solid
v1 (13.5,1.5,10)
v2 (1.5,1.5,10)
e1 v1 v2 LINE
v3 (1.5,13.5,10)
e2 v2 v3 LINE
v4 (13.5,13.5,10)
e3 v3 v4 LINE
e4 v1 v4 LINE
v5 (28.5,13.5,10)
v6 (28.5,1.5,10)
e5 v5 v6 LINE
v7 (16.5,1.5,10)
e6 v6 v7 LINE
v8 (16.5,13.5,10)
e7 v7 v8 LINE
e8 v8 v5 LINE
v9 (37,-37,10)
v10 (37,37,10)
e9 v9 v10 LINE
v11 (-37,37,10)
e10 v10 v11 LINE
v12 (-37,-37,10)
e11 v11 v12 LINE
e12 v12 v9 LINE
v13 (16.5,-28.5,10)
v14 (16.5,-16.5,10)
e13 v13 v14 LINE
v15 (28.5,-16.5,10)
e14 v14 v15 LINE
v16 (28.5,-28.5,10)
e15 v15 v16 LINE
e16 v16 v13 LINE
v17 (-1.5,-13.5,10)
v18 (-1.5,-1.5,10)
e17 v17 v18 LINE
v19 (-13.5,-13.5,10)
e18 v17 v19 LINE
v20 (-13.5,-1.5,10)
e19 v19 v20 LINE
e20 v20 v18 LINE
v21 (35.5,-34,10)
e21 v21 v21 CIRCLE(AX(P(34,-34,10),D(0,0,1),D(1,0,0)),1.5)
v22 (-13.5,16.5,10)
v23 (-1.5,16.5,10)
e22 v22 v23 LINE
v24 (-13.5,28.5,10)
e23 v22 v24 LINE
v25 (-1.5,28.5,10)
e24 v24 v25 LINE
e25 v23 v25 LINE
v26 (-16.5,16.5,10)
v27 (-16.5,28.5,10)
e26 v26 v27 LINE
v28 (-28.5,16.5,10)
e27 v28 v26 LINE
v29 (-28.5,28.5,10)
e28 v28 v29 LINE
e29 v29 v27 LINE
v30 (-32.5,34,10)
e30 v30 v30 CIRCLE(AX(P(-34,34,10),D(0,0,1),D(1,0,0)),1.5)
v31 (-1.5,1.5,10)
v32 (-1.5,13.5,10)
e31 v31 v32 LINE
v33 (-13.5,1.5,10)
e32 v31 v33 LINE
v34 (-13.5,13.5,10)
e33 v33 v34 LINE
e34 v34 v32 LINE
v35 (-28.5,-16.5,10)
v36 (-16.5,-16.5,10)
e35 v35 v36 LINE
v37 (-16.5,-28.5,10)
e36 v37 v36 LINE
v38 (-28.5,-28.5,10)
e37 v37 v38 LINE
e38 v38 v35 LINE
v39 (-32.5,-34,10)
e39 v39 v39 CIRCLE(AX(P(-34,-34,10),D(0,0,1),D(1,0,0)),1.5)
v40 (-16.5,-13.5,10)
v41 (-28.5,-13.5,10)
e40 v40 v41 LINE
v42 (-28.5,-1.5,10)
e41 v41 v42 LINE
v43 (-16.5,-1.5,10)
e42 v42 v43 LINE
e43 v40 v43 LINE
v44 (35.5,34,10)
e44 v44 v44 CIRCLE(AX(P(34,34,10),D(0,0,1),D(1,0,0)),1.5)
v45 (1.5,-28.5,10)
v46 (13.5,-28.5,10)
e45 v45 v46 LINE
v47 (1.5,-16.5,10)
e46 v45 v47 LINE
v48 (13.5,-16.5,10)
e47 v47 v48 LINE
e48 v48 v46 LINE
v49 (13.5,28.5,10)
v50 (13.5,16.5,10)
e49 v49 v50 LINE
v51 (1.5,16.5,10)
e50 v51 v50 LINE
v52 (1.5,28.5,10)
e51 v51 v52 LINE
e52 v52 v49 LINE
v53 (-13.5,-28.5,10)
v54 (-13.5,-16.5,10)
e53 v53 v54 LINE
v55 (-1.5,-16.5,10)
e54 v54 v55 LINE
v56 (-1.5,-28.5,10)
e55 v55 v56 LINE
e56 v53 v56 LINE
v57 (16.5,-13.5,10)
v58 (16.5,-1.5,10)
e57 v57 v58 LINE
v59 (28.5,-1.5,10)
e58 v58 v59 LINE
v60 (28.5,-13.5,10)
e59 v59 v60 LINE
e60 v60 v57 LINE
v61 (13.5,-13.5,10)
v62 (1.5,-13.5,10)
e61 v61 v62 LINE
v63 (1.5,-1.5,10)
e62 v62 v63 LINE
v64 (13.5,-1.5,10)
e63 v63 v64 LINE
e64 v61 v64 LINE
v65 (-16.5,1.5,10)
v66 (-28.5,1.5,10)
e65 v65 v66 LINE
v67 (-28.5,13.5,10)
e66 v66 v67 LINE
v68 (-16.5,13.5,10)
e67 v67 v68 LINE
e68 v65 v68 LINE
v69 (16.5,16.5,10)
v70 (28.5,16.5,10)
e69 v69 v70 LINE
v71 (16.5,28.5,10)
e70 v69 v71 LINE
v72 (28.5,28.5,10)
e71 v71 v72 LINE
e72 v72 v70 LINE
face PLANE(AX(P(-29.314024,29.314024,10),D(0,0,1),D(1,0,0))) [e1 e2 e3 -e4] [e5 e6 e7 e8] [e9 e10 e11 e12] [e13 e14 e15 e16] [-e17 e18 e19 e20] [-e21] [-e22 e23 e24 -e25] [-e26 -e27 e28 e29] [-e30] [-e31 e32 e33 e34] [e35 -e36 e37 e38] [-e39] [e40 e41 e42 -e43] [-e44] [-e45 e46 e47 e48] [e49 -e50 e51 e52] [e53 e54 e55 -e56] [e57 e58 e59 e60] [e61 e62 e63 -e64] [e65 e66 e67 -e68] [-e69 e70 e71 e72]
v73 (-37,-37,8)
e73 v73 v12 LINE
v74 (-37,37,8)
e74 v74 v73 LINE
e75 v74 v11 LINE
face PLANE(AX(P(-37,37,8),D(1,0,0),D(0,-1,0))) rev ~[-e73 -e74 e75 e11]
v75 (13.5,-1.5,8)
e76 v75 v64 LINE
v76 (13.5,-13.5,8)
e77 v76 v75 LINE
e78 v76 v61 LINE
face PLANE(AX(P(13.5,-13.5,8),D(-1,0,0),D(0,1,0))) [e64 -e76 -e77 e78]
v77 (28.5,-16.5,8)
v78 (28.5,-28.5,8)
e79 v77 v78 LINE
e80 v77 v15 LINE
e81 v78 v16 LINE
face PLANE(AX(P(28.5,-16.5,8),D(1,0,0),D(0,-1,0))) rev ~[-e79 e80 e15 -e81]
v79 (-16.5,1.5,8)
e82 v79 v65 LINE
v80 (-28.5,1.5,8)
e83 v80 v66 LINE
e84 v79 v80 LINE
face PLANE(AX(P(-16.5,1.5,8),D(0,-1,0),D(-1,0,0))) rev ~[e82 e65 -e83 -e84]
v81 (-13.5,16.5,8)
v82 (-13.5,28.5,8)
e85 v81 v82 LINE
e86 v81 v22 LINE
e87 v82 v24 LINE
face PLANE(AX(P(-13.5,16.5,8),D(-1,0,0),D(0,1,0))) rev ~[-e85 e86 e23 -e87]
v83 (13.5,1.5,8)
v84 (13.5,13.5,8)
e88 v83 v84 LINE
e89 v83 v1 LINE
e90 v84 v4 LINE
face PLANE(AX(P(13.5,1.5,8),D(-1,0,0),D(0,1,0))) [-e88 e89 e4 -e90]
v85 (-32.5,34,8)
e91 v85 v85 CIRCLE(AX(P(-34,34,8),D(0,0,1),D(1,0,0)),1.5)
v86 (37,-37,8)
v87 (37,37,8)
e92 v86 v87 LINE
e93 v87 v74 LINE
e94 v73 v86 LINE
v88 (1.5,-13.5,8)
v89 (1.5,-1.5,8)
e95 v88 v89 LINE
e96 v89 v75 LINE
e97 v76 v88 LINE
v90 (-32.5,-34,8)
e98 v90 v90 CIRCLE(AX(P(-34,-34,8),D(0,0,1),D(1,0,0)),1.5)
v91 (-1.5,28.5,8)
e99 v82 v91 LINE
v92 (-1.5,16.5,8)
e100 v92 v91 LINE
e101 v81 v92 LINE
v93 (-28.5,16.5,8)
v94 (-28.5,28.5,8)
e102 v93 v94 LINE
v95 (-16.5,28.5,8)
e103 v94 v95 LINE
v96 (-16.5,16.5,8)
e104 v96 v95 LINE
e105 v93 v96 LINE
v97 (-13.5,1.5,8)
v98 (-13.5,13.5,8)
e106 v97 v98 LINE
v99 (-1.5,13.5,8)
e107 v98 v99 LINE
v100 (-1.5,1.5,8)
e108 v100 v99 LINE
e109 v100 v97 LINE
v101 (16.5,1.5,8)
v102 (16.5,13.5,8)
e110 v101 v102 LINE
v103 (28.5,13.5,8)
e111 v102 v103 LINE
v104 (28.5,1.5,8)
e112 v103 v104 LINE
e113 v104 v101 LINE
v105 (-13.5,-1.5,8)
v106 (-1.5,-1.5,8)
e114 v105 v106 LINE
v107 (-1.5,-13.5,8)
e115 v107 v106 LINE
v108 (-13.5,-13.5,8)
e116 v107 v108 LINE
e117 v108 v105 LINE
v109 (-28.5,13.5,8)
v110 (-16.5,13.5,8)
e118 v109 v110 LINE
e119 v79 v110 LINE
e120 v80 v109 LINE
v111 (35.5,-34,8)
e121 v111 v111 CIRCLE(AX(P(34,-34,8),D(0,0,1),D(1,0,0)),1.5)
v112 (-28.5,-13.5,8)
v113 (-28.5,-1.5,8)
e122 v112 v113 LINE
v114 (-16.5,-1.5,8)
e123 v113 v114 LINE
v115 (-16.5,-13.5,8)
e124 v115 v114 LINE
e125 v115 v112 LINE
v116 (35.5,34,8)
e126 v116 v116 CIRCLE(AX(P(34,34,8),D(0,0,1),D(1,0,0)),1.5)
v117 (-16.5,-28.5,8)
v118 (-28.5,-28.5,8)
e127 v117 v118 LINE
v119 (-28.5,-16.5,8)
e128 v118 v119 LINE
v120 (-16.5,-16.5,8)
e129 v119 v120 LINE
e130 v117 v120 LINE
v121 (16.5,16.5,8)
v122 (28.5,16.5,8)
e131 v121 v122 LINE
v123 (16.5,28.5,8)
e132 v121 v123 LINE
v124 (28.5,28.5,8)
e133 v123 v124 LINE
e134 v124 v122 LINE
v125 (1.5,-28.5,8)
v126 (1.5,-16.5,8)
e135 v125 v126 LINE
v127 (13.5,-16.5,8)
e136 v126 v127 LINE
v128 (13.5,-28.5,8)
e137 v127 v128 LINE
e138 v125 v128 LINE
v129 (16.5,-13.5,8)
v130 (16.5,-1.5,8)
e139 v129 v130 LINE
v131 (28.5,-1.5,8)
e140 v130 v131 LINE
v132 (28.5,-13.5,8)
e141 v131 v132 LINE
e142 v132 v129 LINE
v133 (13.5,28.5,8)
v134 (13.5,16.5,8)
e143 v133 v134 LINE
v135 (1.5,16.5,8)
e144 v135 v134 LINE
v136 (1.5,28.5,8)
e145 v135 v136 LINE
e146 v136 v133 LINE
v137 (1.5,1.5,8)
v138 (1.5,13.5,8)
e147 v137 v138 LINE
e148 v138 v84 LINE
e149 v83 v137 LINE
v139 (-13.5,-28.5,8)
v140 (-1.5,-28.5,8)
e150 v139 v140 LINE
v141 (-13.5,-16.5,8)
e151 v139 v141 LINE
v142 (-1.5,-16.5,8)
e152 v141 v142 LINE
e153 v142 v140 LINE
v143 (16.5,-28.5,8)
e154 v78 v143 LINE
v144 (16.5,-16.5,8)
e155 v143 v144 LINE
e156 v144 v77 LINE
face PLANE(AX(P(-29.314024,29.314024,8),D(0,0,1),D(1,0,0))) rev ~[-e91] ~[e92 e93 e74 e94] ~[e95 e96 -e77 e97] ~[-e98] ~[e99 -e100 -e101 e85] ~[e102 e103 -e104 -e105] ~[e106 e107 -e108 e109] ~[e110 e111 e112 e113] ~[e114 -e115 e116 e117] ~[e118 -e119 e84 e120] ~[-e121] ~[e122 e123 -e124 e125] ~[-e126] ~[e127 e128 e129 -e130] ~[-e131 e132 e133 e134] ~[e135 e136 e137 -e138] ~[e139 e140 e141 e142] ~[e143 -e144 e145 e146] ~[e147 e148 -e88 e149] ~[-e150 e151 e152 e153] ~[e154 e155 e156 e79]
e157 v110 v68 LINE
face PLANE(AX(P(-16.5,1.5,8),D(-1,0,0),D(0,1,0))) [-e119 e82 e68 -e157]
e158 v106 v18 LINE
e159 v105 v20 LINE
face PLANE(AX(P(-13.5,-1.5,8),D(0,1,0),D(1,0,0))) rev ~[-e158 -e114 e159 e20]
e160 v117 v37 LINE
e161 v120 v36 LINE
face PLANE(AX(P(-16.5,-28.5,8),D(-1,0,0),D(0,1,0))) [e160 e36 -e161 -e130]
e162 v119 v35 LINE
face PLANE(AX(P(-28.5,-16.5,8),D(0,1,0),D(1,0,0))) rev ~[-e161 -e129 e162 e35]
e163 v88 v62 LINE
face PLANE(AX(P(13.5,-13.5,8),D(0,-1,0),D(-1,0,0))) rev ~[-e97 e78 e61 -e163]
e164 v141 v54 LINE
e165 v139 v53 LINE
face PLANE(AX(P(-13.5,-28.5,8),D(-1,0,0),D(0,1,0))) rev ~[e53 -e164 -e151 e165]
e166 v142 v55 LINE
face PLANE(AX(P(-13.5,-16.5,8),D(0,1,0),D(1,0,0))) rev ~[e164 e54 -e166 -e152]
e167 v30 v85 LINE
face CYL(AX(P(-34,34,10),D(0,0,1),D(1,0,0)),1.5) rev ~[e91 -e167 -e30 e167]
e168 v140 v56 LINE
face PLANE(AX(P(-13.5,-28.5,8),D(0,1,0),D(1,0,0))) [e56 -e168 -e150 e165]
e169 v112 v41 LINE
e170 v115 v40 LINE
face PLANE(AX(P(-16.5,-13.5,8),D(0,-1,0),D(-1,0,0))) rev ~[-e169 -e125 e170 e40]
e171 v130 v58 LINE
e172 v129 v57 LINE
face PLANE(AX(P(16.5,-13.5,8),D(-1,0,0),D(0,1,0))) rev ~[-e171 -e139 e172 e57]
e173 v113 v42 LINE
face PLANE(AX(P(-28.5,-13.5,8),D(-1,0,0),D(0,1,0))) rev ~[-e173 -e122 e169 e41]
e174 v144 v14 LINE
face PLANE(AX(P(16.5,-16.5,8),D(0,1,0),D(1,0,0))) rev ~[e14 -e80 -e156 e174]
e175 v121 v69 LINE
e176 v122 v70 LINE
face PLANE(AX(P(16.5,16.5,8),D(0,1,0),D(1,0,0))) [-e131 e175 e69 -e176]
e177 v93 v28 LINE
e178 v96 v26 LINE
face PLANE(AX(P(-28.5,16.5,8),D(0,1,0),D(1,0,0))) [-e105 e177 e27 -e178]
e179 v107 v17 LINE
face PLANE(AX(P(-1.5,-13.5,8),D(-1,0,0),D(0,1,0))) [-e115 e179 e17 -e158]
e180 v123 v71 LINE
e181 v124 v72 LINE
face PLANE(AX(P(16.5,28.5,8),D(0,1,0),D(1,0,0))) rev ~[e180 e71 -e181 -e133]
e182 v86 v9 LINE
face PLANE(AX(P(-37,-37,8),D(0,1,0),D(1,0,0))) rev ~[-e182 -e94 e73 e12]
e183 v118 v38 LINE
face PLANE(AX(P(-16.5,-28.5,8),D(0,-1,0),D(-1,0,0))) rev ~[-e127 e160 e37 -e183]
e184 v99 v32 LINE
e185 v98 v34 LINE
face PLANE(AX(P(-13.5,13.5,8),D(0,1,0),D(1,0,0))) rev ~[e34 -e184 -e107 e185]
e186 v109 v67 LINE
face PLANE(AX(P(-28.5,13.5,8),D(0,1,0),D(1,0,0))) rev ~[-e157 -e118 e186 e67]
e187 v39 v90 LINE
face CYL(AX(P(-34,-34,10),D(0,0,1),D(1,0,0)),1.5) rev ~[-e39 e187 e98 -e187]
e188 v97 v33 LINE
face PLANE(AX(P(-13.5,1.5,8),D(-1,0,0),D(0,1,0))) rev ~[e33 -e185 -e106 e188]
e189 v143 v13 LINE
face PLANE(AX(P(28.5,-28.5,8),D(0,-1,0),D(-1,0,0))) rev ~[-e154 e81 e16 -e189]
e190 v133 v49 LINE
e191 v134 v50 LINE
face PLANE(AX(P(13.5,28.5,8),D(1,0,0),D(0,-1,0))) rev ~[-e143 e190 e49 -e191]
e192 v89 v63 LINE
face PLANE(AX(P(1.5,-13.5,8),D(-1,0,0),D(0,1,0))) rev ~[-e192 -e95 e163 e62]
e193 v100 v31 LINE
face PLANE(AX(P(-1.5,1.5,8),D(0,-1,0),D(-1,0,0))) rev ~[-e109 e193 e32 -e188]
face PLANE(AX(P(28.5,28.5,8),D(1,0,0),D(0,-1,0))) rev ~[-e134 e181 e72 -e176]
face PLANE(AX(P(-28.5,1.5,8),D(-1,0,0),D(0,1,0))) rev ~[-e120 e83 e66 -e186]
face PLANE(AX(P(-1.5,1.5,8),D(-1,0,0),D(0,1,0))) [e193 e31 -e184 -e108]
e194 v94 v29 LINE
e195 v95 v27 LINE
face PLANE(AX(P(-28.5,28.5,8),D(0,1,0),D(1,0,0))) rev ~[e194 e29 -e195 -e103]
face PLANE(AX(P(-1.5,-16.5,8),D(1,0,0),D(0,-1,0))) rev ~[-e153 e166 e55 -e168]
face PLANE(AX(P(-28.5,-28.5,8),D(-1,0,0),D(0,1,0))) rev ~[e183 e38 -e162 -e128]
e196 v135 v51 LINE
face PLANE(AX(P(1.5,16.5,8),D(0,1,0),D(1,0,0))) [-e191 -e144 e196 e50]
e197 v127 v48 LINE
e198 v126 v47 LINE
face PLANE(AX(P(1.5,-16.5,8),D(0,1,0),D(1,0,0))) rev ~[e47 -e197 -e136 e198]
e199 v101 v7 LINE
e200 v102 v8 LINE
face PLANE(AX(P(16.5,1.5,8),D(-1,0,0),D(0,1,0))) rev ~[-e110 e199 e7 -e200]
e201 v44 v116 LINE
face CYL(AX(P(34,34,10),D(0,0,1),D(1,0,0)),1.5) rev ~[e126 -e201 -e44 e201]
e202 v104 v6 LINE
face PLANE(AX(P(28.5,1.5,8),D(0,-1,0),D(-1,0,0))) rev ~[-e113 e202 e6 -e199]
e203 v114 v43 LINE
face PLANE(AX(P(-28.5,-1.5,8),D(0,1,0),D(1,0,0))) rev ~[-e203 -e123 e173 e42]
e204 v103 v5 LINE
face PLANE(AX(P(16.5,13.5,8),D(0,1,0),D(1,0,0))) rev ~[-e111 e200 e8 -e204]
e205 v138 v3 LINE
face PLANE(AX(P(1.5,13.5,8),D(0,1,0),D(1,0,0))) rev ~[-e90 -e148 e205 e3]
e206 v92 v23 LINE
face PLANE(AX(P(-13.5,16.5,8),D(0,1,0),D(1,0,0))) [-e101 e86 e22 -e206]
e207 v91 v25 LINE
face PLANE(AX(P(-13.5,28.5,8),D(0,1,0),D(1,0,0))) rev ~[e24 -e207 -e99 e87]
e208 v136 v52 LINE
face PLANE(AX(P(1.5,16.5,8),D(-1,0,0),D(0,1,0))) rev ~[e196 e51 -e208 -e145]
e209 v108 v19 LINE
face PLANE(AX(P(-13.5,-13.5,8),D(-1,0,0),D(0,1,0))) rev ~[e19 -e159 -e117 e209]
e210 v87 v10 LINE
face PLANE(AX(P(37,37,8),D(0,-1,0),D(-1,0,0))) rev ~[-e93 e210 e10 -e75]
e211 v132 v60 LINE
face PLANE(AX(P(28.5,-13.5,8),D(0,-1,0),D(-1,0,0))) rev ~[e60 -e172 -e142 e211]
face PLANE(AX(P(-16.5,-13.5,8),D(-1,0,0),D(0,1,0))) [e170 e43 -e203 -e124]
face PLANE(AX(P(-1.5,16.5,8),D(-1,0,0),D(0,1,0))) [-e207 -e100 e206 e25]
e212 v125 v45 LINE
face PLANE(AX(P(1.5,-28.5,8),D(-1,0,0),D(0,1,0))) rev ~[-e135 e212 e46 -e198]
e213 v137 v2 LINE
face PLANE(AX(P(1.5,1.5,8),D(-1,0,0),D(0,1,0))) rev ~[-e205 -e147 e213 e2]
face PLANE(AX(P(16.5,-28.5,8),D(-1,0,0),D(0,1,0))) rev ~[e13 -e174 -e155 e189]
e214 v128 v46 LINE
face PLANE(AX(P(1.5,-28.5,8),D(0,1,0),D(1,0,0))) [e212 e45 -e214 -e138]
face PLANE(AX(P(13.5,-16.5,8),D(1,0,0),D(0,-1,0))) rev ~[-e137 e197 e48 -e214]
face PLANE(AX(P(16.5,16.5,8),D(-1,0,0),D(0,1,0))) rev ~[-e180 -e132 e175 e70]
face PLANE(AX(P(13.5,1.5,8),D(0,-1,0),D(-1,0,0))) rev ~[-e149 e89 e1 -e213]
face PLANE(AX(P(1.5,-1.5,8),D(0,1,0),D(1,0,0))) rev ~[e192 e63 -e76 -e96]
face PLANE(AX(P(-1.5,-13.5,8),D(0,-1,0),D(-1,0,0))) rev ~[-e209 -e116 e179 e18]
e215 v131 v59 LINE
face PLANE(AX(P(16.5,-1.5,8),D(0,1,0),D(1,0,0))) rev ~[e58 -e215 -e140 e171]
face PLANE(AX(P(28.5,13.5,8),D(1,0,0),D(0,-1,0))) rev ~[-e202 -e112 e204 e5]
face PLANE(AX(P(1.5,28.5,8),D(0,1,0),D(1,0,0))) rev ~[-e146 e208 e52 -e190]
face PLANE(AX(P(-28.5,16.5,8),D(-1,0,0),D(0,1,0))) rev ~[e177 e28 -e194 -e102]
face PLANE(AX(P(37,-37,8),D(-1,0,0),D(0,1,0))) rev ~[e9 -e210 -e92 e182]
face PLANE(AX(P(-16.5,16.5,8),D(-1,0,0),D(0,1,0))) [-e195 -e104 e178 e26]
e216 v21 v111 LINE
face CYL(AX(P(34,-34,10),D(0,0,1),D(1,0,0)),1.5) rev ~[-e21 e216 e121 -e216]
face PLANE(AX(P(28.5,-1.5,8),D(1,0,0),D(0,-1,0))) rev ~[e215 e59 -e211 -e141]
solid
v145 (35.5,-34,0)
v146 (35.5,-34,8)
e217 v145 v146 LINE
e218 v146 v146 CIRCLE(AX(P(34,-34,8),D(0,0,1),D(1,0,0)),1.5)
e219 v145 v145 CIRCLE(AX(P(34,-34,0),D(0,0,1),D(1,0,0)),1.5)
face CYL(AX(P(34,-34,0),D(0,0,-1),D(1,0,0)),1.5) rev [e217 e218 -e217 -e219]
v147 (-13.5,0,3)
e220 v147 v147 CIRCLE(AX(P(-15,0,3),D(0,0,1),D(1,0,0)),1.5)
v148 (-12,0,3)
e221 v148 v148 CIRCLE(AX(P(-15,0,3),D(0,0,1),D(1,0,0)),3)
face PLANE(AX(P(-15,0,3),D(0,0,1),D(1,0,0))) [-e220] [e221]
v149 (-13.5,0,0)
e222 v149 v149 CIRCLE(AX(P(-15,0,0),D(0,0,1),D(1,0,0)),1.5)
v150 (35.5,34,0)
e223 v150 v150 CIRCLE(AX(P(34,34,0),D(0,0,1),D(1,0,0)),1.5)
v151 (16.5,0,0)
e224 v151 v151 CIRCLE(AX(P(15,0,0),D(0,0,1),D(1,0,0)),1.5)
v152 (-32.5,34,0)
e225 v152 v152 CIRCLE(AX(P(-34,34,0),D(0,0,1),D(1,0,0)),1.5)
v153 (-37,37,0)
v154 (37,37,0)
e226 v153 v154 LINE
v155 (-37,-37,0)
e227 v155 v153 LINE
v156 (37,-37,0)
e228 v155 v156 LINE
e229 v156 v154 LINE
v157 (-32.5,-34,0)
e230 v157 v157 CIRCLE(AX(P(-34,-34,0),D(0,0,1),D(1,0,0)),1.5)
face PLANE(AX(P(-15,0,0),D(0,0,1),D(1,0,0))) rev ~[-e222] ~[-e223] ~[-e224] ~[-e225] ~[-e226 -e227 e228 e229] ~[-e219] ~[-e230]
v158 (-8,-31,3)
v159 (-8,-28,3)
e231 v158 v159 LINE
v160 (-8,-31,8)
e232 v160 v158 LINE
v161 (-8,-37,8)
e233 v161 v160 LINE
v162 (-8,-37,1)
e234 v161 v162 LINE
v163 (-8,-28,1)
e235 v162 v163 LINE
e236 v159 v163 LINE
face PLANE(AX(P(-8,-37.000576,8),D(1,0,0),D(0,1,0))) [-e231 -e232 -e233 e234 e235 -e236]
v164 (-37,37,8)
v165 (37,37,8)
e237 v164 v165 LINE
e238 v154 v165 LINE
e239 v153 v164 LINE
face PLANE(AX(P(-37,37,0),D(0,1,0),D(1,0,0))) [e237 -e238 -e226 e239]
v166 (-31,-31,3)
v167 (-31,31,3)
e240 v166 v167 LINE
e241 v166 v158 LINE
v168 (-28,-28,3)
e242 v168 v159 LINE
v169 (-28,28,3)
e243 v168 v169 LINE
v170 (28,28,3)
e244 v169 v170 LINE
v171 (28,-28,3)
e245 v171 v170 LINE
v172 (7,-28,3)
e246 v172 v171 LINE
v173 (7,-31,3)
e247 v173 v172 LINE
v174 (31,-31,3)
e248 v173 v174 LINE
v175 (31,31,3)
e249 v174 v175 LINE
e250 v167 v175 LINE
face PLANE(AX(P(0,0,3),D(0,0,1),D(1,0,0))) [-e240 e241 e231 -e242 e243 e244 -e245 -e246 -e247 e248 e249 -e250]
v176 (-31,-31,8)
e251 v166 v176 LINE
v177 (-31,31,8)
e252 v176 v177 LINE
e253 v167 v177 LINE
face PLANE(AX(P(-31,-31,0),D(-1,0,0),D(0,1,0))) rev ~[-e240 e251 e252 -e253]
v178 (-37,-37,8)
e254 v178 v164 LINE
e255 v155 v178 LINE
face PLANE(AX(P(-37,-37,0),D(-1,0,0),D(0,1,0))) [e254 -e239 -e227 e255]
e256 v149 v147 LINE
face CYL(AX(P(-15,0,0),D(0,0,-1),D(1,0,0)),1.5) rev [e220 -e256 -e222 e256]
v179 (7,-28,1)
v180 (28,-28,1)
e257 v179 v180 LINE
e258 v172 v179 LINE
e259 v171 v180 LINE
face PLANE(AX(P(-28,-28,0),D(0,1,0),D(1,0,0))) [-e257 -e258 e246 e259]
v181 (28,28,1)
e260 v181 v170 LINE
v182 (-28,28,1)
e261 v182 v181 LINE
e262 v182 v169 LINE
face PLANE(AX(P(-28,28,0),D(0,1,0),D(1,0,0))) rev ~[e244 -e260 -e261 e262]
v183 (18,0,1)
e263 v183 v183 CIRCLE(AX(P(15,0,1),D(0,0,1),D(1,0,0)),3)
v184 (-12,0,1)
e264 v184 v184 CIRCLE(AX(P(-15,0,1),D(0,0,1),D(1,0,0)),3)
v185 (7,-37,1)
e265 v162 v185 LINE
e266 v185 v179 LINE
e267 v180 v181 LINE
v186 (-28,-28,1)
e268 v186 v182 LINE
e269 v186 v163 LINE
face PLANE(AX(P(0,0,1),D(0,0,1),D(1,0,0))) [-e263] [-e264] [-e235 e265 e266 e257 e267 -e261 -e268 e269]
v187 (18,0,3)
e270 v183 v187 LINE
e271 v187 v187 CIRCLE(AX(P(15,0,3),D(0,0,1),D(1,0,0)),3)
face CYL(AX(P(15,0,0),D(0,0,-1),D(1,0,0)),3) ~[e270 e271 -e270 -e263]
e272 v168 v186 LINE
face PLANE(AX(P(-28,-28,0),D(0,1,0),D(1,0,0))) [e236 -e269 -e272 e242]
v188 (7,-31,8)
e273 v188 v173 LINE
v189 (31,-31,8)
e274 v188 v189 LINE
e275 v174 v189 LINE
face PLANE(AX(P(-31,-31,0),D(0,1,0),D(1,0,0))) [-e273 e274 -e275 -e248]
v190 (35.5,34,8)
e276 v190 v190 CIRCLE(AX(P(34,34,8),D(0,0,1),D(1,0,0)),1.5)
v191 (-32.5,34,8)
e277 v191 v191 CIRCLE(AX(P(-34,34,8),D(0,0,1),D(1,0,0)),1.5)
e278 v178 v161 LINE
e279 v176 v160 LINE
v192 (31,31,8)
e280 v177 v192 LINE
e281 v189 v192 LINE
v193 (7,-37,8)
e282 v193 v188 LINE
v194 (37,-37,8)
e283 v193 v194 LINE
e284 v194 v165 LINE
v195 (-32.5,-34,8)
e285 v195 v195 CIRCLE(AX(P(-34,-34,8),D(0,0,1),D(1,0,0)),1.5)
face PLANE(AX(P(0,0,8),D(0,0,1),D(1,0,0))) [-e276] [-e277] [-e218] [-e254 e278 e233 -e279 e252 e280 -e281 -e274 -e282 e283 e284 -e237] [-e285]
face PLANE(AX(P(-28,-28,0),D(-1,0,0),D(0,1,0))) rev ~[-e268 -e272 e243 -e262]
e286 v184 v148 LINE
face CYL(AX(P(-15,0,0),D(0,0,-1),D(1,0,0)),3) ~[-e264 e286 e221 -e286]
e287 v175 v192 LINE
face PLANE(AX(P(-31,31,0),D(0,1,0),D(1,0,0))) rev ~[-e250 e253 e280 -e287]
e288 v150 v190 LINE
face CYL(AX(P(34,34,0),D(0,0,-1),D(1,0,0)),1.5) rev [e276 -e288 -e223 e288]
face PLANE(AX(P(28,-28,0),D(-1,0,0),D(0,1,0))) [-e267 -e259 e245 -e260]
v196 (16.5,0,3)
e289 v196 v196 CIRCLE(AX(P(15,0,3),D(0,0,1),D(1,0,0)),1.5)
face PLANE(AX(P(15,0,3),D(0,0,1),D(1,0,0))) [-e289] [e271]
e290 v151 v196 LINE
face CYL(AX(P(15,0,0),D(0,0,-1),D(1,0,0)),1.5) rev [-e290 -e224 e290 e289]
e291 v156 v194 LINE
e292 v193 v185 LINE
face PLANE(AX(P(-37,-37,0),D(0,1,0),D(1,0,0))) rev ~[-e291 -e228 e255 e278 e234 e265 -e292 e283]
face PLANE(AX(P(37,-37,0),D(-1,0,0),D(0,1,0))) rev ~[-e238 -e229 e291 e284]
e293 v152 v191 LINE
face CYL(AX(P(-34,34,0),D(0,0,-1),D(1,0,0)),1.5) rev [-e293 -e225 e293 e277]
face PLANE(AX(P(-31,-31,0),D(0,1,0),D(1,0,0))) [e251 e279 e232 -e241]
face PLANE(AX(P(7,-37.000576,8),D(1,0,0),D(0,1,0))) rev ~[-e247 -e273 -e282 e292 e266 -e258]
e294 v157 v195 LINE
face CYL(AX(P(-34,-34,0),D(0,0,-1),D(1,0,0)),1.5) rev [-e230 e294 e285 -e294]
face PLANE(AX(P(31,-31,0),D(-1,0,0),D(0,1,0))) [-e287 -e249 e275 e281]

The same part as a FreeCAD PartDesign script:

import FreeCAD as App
import Part
import Sketcher
from FreeCAD import Vector


def add_polygon(sketch, points):
    """Adds a closed chain of lines whose ends are joined by coincident constraints."""
    first, n = sketch.GeometryCount, len(points)
    for a, b in zip(points, points[1:] + points[:1]):
        sketch.addGeometry(Part.LineSegment(App.Vector(*a, 0), App.Vector(*b, 0)), False)
    for i in range(n):
        sketch.addConstraint(Sketcher.Constraint("Coincident", first + i, 2, first + (i + 1) % n, 1))

doc = App.newDocument("Part")
params = doc.addObject("Spreadsheet::Sheet", "Params")
for row, (alias, value) in enumerate([
    ("sketch1_diameter", "3 mm"),
    ("sketch1_width", "74 mm"),
    ("sketch1_width2", "62 mm"),
    ("pad1_length", "8 mm"),
    ("sketch2_width", "62 mm"),
    ("sketch2_width2", "56 mm"),
    ("pad2_length", "2 mm"),
    ("sketch3_diameter", "6 mm"),
    ("sketch3_width", "56 mm"),
    ("pad3_length", "1 mm"),
    ("sketch4_diameter", "6 mm"),
    ("sketch4_diameter2", "3 mm"),
    ("pad4_length", "3 mm"),
    ("sketch5_width", "62 mm"),
    ("sketch5_width2", "56 mm"),
    ("pad5_length", "3 mm"),
    ("sketch6_width", "15 mm"),
    ("pocket1_length", "7 mm"),
    ("sketch7_width", "74 mm"),
    ("sketch7_width2", "12 mm"),
    ("pad6_length", "2 mm"),
    ("sketch8_diameter", "3 mm"),
    ("pocket2_length", "2 mm"),
], start=1):
    params.set(f"A{row}", alias)
    params.set(f"B{row}", "=" + value)
    params.setAlias(f"B{row}", alias)

body = doc.addObject("PartDesign::Body", "Body")

# Sketch on XY plane
sketch1 = doc.addObject("Sketcher::SketchObject", "Sketch")
body.addObject(sketch1)
sketch1.AttachmentSupport = (doc.XY_Plane, [""])
sketch1.MapMode = "FlatFace"
add_polygon(sketch1, [(-37, 37), (-37, -37), (37, -37), (37, 37)])  # lines 0-3
sketch1.addGeometry(Part.Circle(Vector(-34, -34, 0), Vector(0, 0, 1), 1.5), False)  # 4
sketch1.addGeometry(Part.Circle(Vector(34, -34, 0), Vector(0, 0, 1), 1.5), False)  # 5
sketch1.addGeometry(Part.Circle(Vector(-34, 34, 0), Vector(0, 0, 1), 1.5), False)  # 6
add_polygon(sketch1, [(31, -31), (-31, -31), (-31, 31), (31, 31)])  # lines 7-10
sketch1.addGeometry(Part.Circle(Vector(34, 34, 0), Vector(0, 0, 1), 1.5), False)  # 11
sketch1.addConstraint([
    Sketcher.Constraint("Vertical", 0),
    Sketcher.Constraint("Horizontal", 1),
    Sketcher.Constraint("Vertical", 2),
    Sketcher.Constraint("Horizontal", 3),
    Sketcher.Constraint("Horizontal", 7),
    Sketcher.Constraint("Vertical", 8),
    Sketcher.Constraint("Horizontal", 9),
    Sketcher.Constraint("Vertical", 10),
    Sketcher.Constraint("Equal", 4, 5),
    Sketcher.Constraint("Equal", 5, 6),
    Sketcher.Constraint("Equal", 6, 11),
    Sketcher.Constraint("Symmetric", 5, 3, 6, 3, -1, 1),
    Sketcher.Constraint("Symmetric", 4, 3, 11, 3, -1, 1),
    Sketcher.Constraint("Symmetric", 0, 2, 2, 2, -1, 1),
    Sketcher.Constraint("Symmetric", 7, 2, 9, 2, -1, 1),
    Sketcher.Constraint("Symmetric", 4, 3, 5, 3, -2),
    Sketcher.Constraint("Equal", 3, 0),
    Sketcher.Constraint("Equal", 9, 8),
    Sketcher.Constraint("Diameter", 4, 3.0),
    Sketcher.Constraint("DistanceX", 1, 1, 1, 2, 74.0),
    Sketcher.Constraint("DistanceX", 7, 2, 7, 1, 62.0),
    Sketcher.Constraint("DistanceX", 4, 3, -1, 1, 34.0),
    Sketcher.Constraint("DistanceY", 4, 3, -1, 1, 34.0),
])
sketch1.setExpression("Constraints[26]", "Params.sketch1_diameter")
sketch1.setExpression("Constraints[27]", "Params.sketch1_width")
sketch1.setExpression("Constraints[28]", "Params.sketch1_width2")
pad1 = doc.addObject("PartDesign::Pad", "Pad")
body.addObject(pad1)
pad1.Profile = sketch1
pad1.setExpression("Length", "Params.pad1_length")

# Sketch on XY plane
sketch2 = doc.addObject("Sketcher::SketchObject", "Sketch001")
body.addObject(sketch2)
sketch2.AttachmentSupport = (doc.XY_Plane, [""])
sketch2.MapMode = "FlatFace"
add_polygon(sketch2, [(-31, 31), (-31, -31), (31, -31), (31, 31)])  # lines 0-3
add_polygon(sketch2, [(28, -28), (-28, -28), (-28, 28), (28, 28)])  # lines 4-7
sketch2.addConstraint([
    Sketcher.Constraint("Vertical", 0),
    Sketcher.Constraint("Horizontal", 1),
    Sketcher.Constraint("Vertical", 2),
    Sketcher.Constraint("Horizontal", 3),
    Sketcher.Constraint("Horizontal", 4),
    Sketcher.Constraint("Vertical", 5),
    Sketcher.Constraint("Horizontal", 6),
    Sketcher.Constraint("Vertical", 7),
    Sketcher.Constraint("Symmetric", 0, 2, 2, 2, -1, 1),
    Sketcher.Constraint("Symmetric", 4, 2, 6, 2, -1, 1),
    Sketcher.Constraint("Equal", 3, 0),
    Sketcher.Constraint("Equal", 6, 5),
    Sketcher.Constraint("DistanceX", 1, 1, 1, 2, 62.0),
    Sketcher.Constraint("DistanceX", 4, 2, 4, 1, 56.0),
])
sketch2.setExpression("Constraints[20]", "Params.sketch2_width")
sketch2.setExpression("Constraints[21]", "Params.sketch2_width2")
pad2 = doc.addObject("PartDesign::Pad", "Pad001")
body.addObject(pad2)
pad2.Profile = sketch2
pad2.setExpression("Length", "Params.pad2_length")

# Sketch on XY plane
sketch3 = doc.addObject("Sketcher::SketchObject", "Sketch002")
body.addObject(sketch3)
sketch3.AttachmentSupport = (doc.XY_Plane, [""])
sketch3.MapMode = "FlatFace"
add_polygon(sketch3, [(-28, 28), (-28, -28), (28, -28), (28, 28)])  # lines 0-3
sketch3.addGeometry(Part.Circle(Vector(-15, 0, 0), Vector(0, 0, 1), 3), False)  # 4
sketch3.addGeometry(Part.Circle(Vector(15, 0, 0), Vector(0, 0, 1), 3), False)  # 5
sketch3.addConstraint([
    Sketcher.Constraint("Vertical", 0),
    Sketcher.Constraint("Horizontal", 1),
    Sketcher.Constraint("Vertical", 2),
    Sketcher.Constraint("Horizontal", 3),
    Sketcher.Constraint("Equal", 4, 5),
    Sketcher.Constraint("Symmetric", 4, 3, 5, 3, -1, 1),
    Sketcher.Constraint("Symmetric", 0, 2, 2, 2, -1, 1),
    Sketcher.Constraint("PointOnObject", 4, 3, -1),
    Sketcher.Constraint("Equal", 3, 0),
    Sketcher.Constraint("Diameter", 4, 6.0),
    Sketcher.Constraint("DistanceX", 1, 1, 1, 2, 56.0),
    Sketcher.Constraint("DistanceX", 4, 3, -1, 1, 15.0),
])
sketch3.setExpression("Constraints[13]", "Params.sketch3_diameter")
sketch3.setExpression("Constraints[14]", "Params.sketch3_width")
pad3 = doc.addObject("PartDesign::Pad", "Pad002")
body.addObject(pad3)
pad3.Profile = sketch3
pad3.setExpression("Length", "Params.pad3_length")

# Sketch on XY plane
sketch4 = doc.addObject("Sketcher::SketchObject", "Sketch003")
body.addObject(sketch4)
sketch4.AttachmentSupport = (doc.XY_Plane, [""])
sketch4.MapMode = "FlatFace"
sketch4.addGeometry([
    Part.Circle(Vector(-15, 0, 0), Vector(0, 0, 1), 3),
    Part.Circle(Vector(-15, 0, 0), Vector(0, 0, 1), 1.5),
    Part.Circle(Vector(15, 0, 0), Vector(0, 0, 1), 3),
    Part.Circle(Vector(15, 0, 0), Vector(0, 0, 1), 1.5),
], False)
sketch4.addConstraint([
    Sketcher.Constraint("Coincident", 1, 3, 0, 3),
    Sketcher.Constraint("Coincident", 3, 3, 2, 3),
    Sketcher.Constraint("Equal", 0, 2),
    Sketcher.Constraint("Equal", 1, 3),
    Sketcher.Constraint("Symmetric", 0, 3, 2, 3, -1, 1),
    Sketcher.Constraint("PointOnObject", 0, 3, -1),
    Sketcher.Constraint("Diameter", 0, 6.0),
    Sketcher.Constraint("Diameter", 1, 3.0),
    Sketcher.Constraint("DistanceX", 0, 3, -1, 1, 15.0),
])
sketch4.setExpression("Constraints[6]", "Params.sketch4_diameter")
sketch4.setExpression("Constraints[7]", "Params.sketch4_diameter2")
pad4 = doc.addObject("PartDesign::Pad", "Pad003")
body.addObject(pad4)
pad4.Profile = sketch4
pad4.setExpression("Length", "Params.pad4_length")

# Sketch on XY plane
sketch5 = doc.addObject("Sketcher::SketchObject", "Sketch004")
body.addObject(sketch5)
sketch5.AttachmentSupport = (doc.XY_Plane, [""])
sketch5.MapMode = "FlatFace"
add_polygon(sketch5, [(-31, 31), (-31, -31), (31, -31), (31, 31)])  # lines 0-3
add_polygon(sketch5, [(28, -28), (-28, -28), (-28, 28), (28, 28)])  # lines 4-7
sketch5.addConstraint([
    Sketcher.Constraint("Vertical", 0),
    Sketcher.Constraint("Horizontal", 1),
    Sketcher.Constraint("Vertical", 2),
    Sketcher.Constraint("Horizontal", 3),
    Sketcher.Constraint("Horizontal", 4),
    Sketcher.Constraint("Vertical", 5),
    Sketcher.Constraint("Horizontal", 6),
    Sketcher.Constraint("Vertical", 7),
    Sketcher.Constraint("Symmetric", 0, 2, 2, 2, -1, 1),
    Sketcher.Constraint("Symmetric", 4, 2, 6, 2, -1, 1),
    Sketcher.Constraint("Equal", 3, 0),
    Sketcher.Constraint("Equal", 6, 5),
    Sketcher.Constraint("DistanceX", 1, 1, 1, 2, 62.0),
    Sketcher.Constraint("DistanceX", 4, 2, 4, 1, 56.0),
])
sketch5.setExpression("Constraints[20]", "Params.sketch5_width")
sketch5.setExpression("Constraints[21]", "Params.sketch5_width2")
pad5 = doc.addObject("PartDesign::Pad", "Pad004")
body.addObject(pad5)
pad5.Profile = sketch5
pad5.setExpression("Length", "Params.pad5_length")

# Sketch on XY plane
sketch6 = doc.addObject("Sketcher::SketchObject", "Sketch005")
body.addObject(sketch6)
sketch6.AttachmentSupport = (doc.XY_Plane, [""])
sketch6.MapMode = "FlatFace"
sketch6.AttachmentOffset = App.Placement(Vector(0, 0, 8), App.Rotation())
add_polygon(sketch6, [(7, -37.000576), (7, -28), (-8, -28), (-8, -37.000576)])  # lines 0-3
sketch6.addConstraint([
    Sketcher.Constraint("Vertical", 0),
    Sketcher.Constraint("Horizontal", 1),
    Sketcher.Constraint("Vertical", 2),
    Sketcher.Constraint("Horizontal", 3),
    Sketcher.Constraint("DistanceX", 1, 2, 1, 1, 15.0),
    Sketcher.Constraint("DistanceX", -1, 1, 0, 2, 7.0),
    Sketcher.Constraint("DistanceY", 0, 2, -1, 1, 28.0),
    Sketcher.Constraint("DistanceY", 0, 1, 0, 2, 9.000576),
])
sketch6.setExpression("Constraints[8]", "Params.sketch6_width")
pocket1 = doc.addObject("PartDesign::Pocket", "Pocket")
body.addObject(pocket1)
pocket1.Profile = sketch6
pocket1.setExpression("Length", "Params.pocket1_length")
body2 = doc.addObject("PartDesign::Body", "Body001")

# Sketch on XY plane
sketch7 = doc.addObject("Sketcher::SketchObject", "Sketch006")
body2.addObject(sketch7)
sketch7.AttachmentSupport = (doc.getObject("XY_Plane001"), [""])
sketch7.MapMode = "FlatFace"
sketch7.AttachmentOffset = App.Placement(Vector(0, 0, 8), App.Rotation())
add_polygon(sketch7, [(37, -37), (37, 37), (-37, 37), (-37, -37)])  # lines 0-3
add_polygon(sketch7, [(-16.5, -16.5), (-16.5, -28.5), (-28.5, -28.5), (-28.5, -16.5)])  # lines 4-7
add_polygon(sketch7, [(-1.5, -16.5), (-1.5, -28.5), (-13.5, -28.5), (-13.5, -16.5)])  # lines 8-11
add_polygon(sketch7, [(-28.5, -13.5), (-28.5, -1.5), (-16.5, -1.5), (-16.5, -13.5)])  # lines 12-15
add_polygon(sketch7, [(-13.5, -1.5), (-1.5, -1.5), (-1.5, -13.5), (-13.5, -13.5)])  # lines 16-19
add_polygon(sketch7, [(13.5, -28.5), (1.5, -28.5), (1.5, -16.5), (13.5, -16.5)])  # lines 20-23
add_polygon(sketch7, [(16.5, -28.5), (16.5, -16.5), (28.5, -16.5), (28.5, -28.5)])  # lines 24-27
add_polygon(sketch7, [(1.5, -1.5), (13.5, -1.5), (13.5, -13.5), (1.5, -13.5)])  # lines 28-31
add_polygon(sketch7, [(16.5, -1.5), (28.5, -1.5), (28.5, -13.5), (16.5, -13.5)])  # lines 32-35
add_polygon(sketch7, [(-28.5, 13.5), (-16.5, 13.5), (-16.5, 1.5), (-28.5, 1.5)])  # lines 36-39
add_polygon(sketch7, [(-13.5, 13.5), (-1.5, 13.5), (-1.5, 1.5), (-13.5, 1.5)])  # lines 40-43
add_polygon(sketch7, [(-16.5, 16.5), (-28.5, 16.5), (-28.5, 28.5), (-16.5, 28.5)])  # lines 44-47
add_polygon(sketch7, [(-1.5, 16.5), (-13.5, 16.5), (-13.5, 28.5), (-1.5, 28.5)])  # lines 48-51
add_polygon(sketch7, [(1.5, 13.5), (13.5, 13.5), (13.5, 1.5), (1.5, 1.5)])  # lines 52-55
add_polygon(sketch7, [(16.5, 13.5), (28.5, 13.5), (28.5, 1.5), (16.5, 1.5)])  # lines 56-59
add_polygon(sketch7, [(1.5, 16.5), (1.5, 28.5), (13.5, 28.5), (13.5, 16.5)])  # lines 60-63
add_polygon(sketch7, [(28.5, 16.5), (16.5, 16.5), (16.5, 28.5), (28.5, 28.5)])  # lines 64-67
sketch7.addConstraint([
    Sketcher.Constraint("Vertical", 0),
    Sketcher.Constraint("Horizontal", 1),
    Sketcher.Constraint("Vertical", 2),
    Sketcher.Constraint("Horizontal", 3),
    Sketcher.Constraint("Vertical", 4),
    Sketcher.Constraint("Horizontal", 5),
    Sketcher.Constraint("Vertical", 6),
    Sketcher.Constraint("Horizontal", 7),
    Sketcher.Constraint("Vertical", 8),
    Sketcher.Constraint("Horizontal", 9),
    Sketcher.Constraint("Vertical", 10),
    Sketcher.Constraint("Horizontal", 11),
    Sketcher.Constraint("Vertical", 12),
    Sketcher.Constraint("Horizontal", 13),
    Sketcher.Constraint("Vertical", 14),
    Sketcher.Constraint("Horizontal", 15),
    Sketcher.Constraint("Horizontal", 16),
    Sketcher.Constraint("Vertical", 17),
    Sketcher.Constraint("Horizontal", 18),
    Sketcher.Constraint("Vertical", 19),
    Sketcher.Constraint("Horizontal", 20),
    Sketcher.Constraint("Vertical", 21),
    Sketcher.Constraint("Horizontal", 22),
    Sketcher.Constraint("Vertical", 23),
    Sketcher.Constraint("Vertical", 24),
    Sketcher.Constraint("Horizontal", 25),
    Sketcher.Constraint("Vertical", 26),
    Sketcher.Constraint("Horizontal", 27),
    Sketcher.Constraint("Horizontal", 28),
    Sketcher.Constraint("Vertical", 29),
    Sketcher.Constraint("Horizontal", 30),
    Sketcher.Constraint("Vertical", 31),
    Sketcher.Constraint("Horizontal", 32),
    Sketcher.Constraint("Vertical", 33),
    Sketcher.Constraint("Horizontal", 34),
    Sketcher.Constraint("Vertical", 35),
    Sketcher.Constraint("Horizontal", 36),
    Sketcher.Constraint("Vertical", 37),
    Sketcher.Constraint("Horizontal", 38),
    Sketcher.Constraint("Vertical", 39),
    Sketcher.Constraint("Horizontal", 40),
    Sketcher.Constraint("Vertical", 41),
    Sketcher.Constraint("Horizontal", 42),
    Sketcher.Constraint("Vertical", 43),
    Sketcher.Constraint("Horizontal", 44),
    Sketcher.Constraint("Vertical", 45),
    Sketcher.Constraint("Horizontal", 46),
    Sketcher.Constraint("Vertical", 47),
    Sketcher.Constraint("Horizontal", 48),
    Sketcher.Constraint("Vertical", 49),
    Sketcher.Constraint("Horizontal", 50),
    Sketcher.Constraint("Vertical", 51),
    Sketcher.Constraint("Horizontal", 52),
    Sketcher.Constraint("Vertical", 53),
    Sketcher.Constraint("Horizontal", 54),
    Sketcher.Constraint("Vertical", 55),
    Sketcher.Constraint("Horizontal", 56),
    Sketcher.Constraint("Vertical", 57),
    Sketcher.Constraint("Horizontal", 58),
    Sketcher.Constraint("Vertical", 59),
    Sketcher.Constraint("Vertical", 60),
    Sketcher.Constraint("Horizontal", 61),
    Sketcher.Constraint("Vertical", 62),
    Sketcher.Constraint("Horizontal", 63),
    Sketcher.Constraint("Horizontal", 64),
    Sketcher.Constraint("Vertical", 65),
    Sketcher.Constraint("Horizontal", 66),
    Sketcher.Constraint("Vertical", 67),
    Sketcher.Constraint("Symmetric", 0, 2, 2, 2, -1, 1),
    Sketcher.Constraint("Symmetric", 34, 2, 36, 2, -1, 1),
    Sketcher.Constraint("Symmetric", 32, 2, 38, 2, -1, 1),
    Sketcher.Constraint("Symmetric", 30, 2, 40, 2, -1, 1),
    Sketcher.Constraint("Symmetric", 28, 2, 42, 2, -1, 1),
    Sketcher.Constraint("Symmetric", 25, 2, 44, 2, -1, 1),
    Sketcher.Constraint("Symmetric", 27, 2, 46, 2, -1, 1),
    Sketcher.Constraint("Symmetric", 22, 2, 48, 2, -1, 1),
    Sketcher.Constraint("Symmetric", 20, 2, 50, 2, -1, 1),
    Sketcher.Constraint("Symmetric", 18, 2, 52, 2, -1, 1),
    Sketcher.Constraint("Symmetric", 16, 2, 54, 2, -1, 1),
    Sketcher.Constraint("Symmetric", 15, 2, 56, 2, -1, 1),
    Sketcher.Constraint("Symmetric", 13, 2, 58, 2, -1, 1),
    Sketcher.Constraint("Symmetric", 8, 2, 60, 2, -1, 1),
    Sketcher.Constraint("Symmetric", 10, 2, 62, 2, -1, 1),
    Sketcher.Constraint("Symmetric", 7, 2, 64, 2, -1, 1),
    Sketcher.Constraint("Symmetric", 5, 2, 66, 2, -1, 1),
    Sketcher.Constraint("Symmetric", 8, 2, 20, 2, -2),
    Sketcher.Constraint("Symmetric", 10, 2, 22, 2, -2),
    Sketcher.Constraint("Symmetric", 7, 2, 24, 2, -2),
    Sketcher.Constraint("Symmetric", 5, 2, 26, 2, -2),
    Sketcher.Constraint("Symmetric", 19, 2, 28, 2, -2),
    Sketcher.Constraint("Symmetric", 17, 2, 30, 2, -2),
    Sketcher.Constraint("Symmetric", 12, 2, 32, 2, -2),
    Sketcher.Constraint("Symmetric", 14, 2, 34, 2, -2),
    Sketcher.Constraint("Horizontal", 5, 2, 8, 2),
    Sketcher.Constraint("Horizontal", 7, 2, 10, 2),
    Sketcher.Constraint("Horizontal", 13, 2, 16, 2),
    Sketcher.Constraint("Horizontal", 15, 2, 17, 2),
    Sketcher.Constraint("Vertical", 6, 2, 12, 2),
    Sketcher.Constraint("Vertical", 7, 2, 13, 2),
    Sketcher.Constraint("Vertical", 11, 2, 16, 2),
    Sketcher.Constraint("Vertical", 10, 2, 18, 2),
    Sketcher.Constraint("Equal", 7, 9),
    Sketcher.Constraint("Equal", 3, 0),
    Sketcher.Constraint("Equal", 66, 4),
    Sketcher.Constraint("Equal", 10, 12),
    Sketcher.Constraint("DistanceX", 1, 2, 1, 1, 74.0),
    Sketcher.Constraint("DistanceX", 5, 2, 5, 1, 12.0),
    Sketcher.Constraint("DistanceX", 4, 2, -1, 1, 16.5),
    Sketcher.Constraint("DistanceY", 4, 2, -1, 1, 28.5),
    Sketcher.Constraint("DistanceX", 8, 2, -1, 1, 1.5),
    Sketcher.Constraint("DistanceY", 12, 2, -1, 1, 1.5),
])
sketch7.setExpression("Constraints[173]", "Params.sketch7_width")
sketch7.setExpression("Constraints[174]", "Params.sketch7_width2")
pad6 = doc.addObject("PartDesign::Pad", "Pad005")
body2.addObject(pad6)
pad6.Profile = sketch7
pad6.setExpression("Length", "Params.pad6_length")

# Sketch on XY plane
sketch8 = doc.addObject("Sketcher::SketchObject", "Sketch007")
body2.addObject(sketch8)
sketch8.AttachmentSupport = (doc.getObject("XY_Plane001"), [""])
sketch8.MapMode = "FlatFace"
sketch8.AttachmentOffset = App.Placement(Vector(0, 0, 10), App.Rotation())
sketch8.addGeometry([
    Part.Circle(Vector(-34, -34, 0), Vector(0, 0, 1), 1.5),
    Part.Circle(Vector(34, -34, 0), Vector(0, 0, 1), 1.5),
    Part.Circle(Vector(34, 34, 0), Vector(0, 0, 1), 1.5),
    Part.Circle(Vector(-34, 34, 0), Vector(0, 0, 1), 1.5),
], False)
sketch8.addConstraint([
    Sketcher.Constraint("Equal", 0, 1),
    Sketcher.Constraint("Equal", 1, 2),
    Sketcher.Constraint("Equal", 2, 3),
    Sketcher.Constraint("Symmetric", 0, 3, 2, 3, -1, 1),
    Sketcher.Constraint("Symmetric", 1, 3, 3, 3, -1, 1),
    Sketcher.Constraint("Symmetric", 0, 3, 1, 3, -2),
    Sketcher.Constraint("Diameter", 0, 3.0),
    Sketcher.Constraint("DistanceX", 0, 3, -1, 1, 34.0),
    Sketcher.Constraint("DistanceY", 0, 3, -1, 1, 34.0),
])
sketch8.setExpression("Constraints[6]", "Params.sketch8_diameter")
pocket2 = doc.addObject("PartDesign::Pocket", "Pocket001")
body2.addObject(pocket2)
pocket2.Profile = sketch8
pocket2.setExpression("Length", "Params.pocket2_length")

doc.recompute()
